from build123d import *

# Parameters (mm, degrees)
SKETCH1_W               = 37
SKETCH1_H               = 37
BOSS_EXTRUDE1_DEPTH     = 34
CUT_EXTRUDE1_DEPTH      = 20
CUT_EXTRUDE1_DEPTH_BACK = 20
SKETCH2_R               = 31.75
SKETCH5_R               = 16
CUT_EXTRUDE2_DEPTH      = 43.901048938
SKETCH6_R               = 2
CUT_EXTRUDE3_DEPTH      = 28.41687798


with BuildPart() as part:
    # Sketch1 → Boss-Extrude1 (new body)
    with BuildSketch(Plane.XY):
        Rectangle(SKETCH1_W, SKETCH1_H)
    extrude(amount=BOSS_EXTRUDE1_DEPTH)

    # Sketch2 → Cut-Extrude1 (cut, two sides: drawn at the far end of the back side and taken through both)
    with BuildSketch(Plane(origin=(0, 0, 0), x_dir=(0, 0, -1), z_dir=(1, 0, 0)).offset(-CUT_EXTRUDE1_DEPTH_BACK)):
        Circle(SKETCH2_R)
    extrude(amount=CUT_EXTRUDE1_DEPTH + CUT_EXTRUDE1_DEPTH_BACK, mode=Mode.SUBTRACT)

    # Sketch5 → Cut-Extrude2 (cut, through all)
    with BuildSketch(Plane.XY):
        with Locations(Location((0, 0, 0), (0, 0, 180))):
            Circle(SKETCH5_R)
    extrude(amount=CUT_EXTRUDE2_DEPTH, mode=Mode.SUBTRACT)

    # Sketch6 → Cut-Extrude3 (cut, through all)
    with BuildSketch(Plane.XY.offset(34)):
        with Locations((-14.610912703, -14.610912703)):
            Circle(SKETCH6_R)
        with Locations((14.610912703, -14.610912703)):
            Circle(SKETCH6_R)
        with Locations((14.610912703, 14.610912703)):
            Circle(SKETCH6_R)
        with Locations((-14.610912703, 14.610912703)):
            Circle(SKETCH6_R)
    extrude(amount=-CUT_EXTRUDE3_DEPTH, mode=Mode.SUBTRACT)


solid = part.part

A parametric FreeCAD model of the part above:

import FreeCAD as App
import Part
import Sketcher
from FreeCAD import Vector


def add_polygon(sketch, points):
    """Adds a closed chain of lines whose ends are joined by coincident constraints."""
    first, n = sketch.GeometryCount, len(points)
    for a, b in zip(points, points[1:] + points[:1]):
        sketch.addGeometry(Part.LineSegment(App.Vector(*a, 0), App.Vector(*b, 0)), False)
    for i in range(n):
        sketch.addConstraint(Sketcher.Constraint("Coincident", first + i, 2, first + (i + 1) % n, 1))

doc = App.newDocument("Part")
params = doc.addObject("Spreadsheet::Sheet", "Params")
for row, (alias, value) in enumerate([
    ("sketch1_width", "37 mm"),
    ("pad1_length", "34 mm"),
    ("sketch2_diameter", "63.5 mm"),
    ("sketch3_diameter", "32 mm"),
    ("sketch4_diameter", "4 mm"),
], start=1):
    params.set(f"A{row}", alias)
    params.set(f"B{row}", "=" + value)
    params.setAlias(f"B{row}", alias)

body = doc.addObject("PartDesign::Body", "Body")

# Sketch on XY plane
sketch1 = body.newObject("Sketcher::SketchObject", "Sketch")
sketch1.AttachmentSupport = (doc.getObject("XY_Plane"), [""])
sketch1.MapMode = "FlatFace"
add_polygon(sketch1, [(-18, 18), (-18, -18), (18, -18), (18, 18)])  # lines 0-3
sketch1.addConstraint([
    Sketcher.Constraint("Vertical", 0),
    Sketcher.Constraint("Horizontal", 1),
    Sketcher.Constraint("Vertical", 2),
    Sketcher.Constraint("Horizontal", 3),
    Sketcher.Constraint("Symmetric", 0, 2, 2, 2, -1, 1),
    Sketcher.Constraint("Equal", 3, 0),
    Sketcher.Constraint("DistanceX", 1, 1, 1, 2, 37.0),
])
sketch1.setExpression("Constraints[10]", "Params.sketch1_width")
pad1 = body.newObject("PartDesign::Pad", "Pad")
pad1.Profile = sketch1
pad1.setExpression("Length", "Params.pad1_length")

# Sketch on YZ plane
sketch2 = body.newObject("Sketcher::SketchObject", "Sketch001")
sketch2.AttachmentSupport = (doc.getObject("YZ_Plane"), [""])
sketch2.MapMode = "FlatFace"
sketch2.addGeometry(Part.Circle(Vector(0, 0, 0), Vector(0, 0, 1), 32), False)
sketch2.addConstraint([
    Sketcher.Constraint("Coincident", 0, 3, -1, 1),
    Sketcher.Constraint("Diameter", 0, 63.5),
])
sketch2.setExpression("Constraints[1]", "Params.sketch2_diameter")
pocket1 = body.newObject("PartDesign::Pocket", "Pocket")
pocket1.Profile = sketch2
pocket1.Type = "ThroughAll"
pocket1.Midplane = True

# Sketch on XY plane
sketch3 = body.newObject("Sketcher::SketchObject", "Sketch002")
sketch3.AttachmentSupport = (doc.getObject("XY_Plane"), [""])
sketch3.MapMode = "FlatFace"
sketch3.addGeometry(Part.Circle(Vector(0, 0, 0), Vector(0, 0, 1), 16), False)
sketch3.addConstraint([
    Sketcher.Constraint("Coincident", 0, 3, -1, 1),
    Sketcher.Constraint("Diameter", 0, 32.0),
])
sketch3.setExpression("Constraints[1]", "Params.sketch3_diameter")
pocket2 = body.newObject("PartDesign::Pocket", "Pocket001")
pocket2.Profile = sketch3
pocket2.Type = "ThroughAll"
pocket2.Reversed = True

# Sketch on XY plane
sketch4 = body.newObject("Sketcher::SketchObject", "Sketch003")
sketch4.AttachmentSupport = (doc.getObject("XY_Plane"), [""])
sketch4.MapMode = "FlatFace"
sketch4.AttachmentOffset = App.Placement(Vector(0, 0, 34), App.Rotation())
sketch4.addGeometry([
    Part.Circle(Vector(-14.6, -14.6, 0), Vector(0, 0, 1), 2),
    Part.Circle(Vector(14.6, -14.6, 0), Vector(0, 0, 1), 2),
    Part.Circle(Vector(14.6, 14.6, 0), Vector(0, 0, 1), 2),
    Part.Circle(Vector(-14.6, 14.6, 0), Vector(0, 0, 1), 2),
], False)
sketch4.addConstraint([
    Sketcher.Constraint("Equal", 0, 1),
    Sketcher.Constraint("Equal", 1, 2),
    Sketcher.Constraint("Equal", 2, 3),
    Sketcher.Constraint("Symmetric", 0, 3, 2, 3, -1, 1),
    Sketcher.Constraint("Symmetric", 1, 3, 3, 3, -1, 1),
    Sketcher.Constraint("Symmetric", 0, 3, 1, 3, -2),
    Sketcher.Constraint("Diameter", 0, 4.0),
    Sketcher.Constraint("DistanceX", 0, 3, -1, 1, 14.610913),
    Sketcher.Constraint("DistanceY", 0, 3, -1, 1, 14.610913),
])
sketch4.setExpression("Constraints[6]", "Params.sketch4_diameter")
pocket3 = body.newObject("PartDesign::Pocket", "Pocket002")
pocket3.Profile = sketch4
pocket3.Type = "ThroughAll"

doc.recompute()
